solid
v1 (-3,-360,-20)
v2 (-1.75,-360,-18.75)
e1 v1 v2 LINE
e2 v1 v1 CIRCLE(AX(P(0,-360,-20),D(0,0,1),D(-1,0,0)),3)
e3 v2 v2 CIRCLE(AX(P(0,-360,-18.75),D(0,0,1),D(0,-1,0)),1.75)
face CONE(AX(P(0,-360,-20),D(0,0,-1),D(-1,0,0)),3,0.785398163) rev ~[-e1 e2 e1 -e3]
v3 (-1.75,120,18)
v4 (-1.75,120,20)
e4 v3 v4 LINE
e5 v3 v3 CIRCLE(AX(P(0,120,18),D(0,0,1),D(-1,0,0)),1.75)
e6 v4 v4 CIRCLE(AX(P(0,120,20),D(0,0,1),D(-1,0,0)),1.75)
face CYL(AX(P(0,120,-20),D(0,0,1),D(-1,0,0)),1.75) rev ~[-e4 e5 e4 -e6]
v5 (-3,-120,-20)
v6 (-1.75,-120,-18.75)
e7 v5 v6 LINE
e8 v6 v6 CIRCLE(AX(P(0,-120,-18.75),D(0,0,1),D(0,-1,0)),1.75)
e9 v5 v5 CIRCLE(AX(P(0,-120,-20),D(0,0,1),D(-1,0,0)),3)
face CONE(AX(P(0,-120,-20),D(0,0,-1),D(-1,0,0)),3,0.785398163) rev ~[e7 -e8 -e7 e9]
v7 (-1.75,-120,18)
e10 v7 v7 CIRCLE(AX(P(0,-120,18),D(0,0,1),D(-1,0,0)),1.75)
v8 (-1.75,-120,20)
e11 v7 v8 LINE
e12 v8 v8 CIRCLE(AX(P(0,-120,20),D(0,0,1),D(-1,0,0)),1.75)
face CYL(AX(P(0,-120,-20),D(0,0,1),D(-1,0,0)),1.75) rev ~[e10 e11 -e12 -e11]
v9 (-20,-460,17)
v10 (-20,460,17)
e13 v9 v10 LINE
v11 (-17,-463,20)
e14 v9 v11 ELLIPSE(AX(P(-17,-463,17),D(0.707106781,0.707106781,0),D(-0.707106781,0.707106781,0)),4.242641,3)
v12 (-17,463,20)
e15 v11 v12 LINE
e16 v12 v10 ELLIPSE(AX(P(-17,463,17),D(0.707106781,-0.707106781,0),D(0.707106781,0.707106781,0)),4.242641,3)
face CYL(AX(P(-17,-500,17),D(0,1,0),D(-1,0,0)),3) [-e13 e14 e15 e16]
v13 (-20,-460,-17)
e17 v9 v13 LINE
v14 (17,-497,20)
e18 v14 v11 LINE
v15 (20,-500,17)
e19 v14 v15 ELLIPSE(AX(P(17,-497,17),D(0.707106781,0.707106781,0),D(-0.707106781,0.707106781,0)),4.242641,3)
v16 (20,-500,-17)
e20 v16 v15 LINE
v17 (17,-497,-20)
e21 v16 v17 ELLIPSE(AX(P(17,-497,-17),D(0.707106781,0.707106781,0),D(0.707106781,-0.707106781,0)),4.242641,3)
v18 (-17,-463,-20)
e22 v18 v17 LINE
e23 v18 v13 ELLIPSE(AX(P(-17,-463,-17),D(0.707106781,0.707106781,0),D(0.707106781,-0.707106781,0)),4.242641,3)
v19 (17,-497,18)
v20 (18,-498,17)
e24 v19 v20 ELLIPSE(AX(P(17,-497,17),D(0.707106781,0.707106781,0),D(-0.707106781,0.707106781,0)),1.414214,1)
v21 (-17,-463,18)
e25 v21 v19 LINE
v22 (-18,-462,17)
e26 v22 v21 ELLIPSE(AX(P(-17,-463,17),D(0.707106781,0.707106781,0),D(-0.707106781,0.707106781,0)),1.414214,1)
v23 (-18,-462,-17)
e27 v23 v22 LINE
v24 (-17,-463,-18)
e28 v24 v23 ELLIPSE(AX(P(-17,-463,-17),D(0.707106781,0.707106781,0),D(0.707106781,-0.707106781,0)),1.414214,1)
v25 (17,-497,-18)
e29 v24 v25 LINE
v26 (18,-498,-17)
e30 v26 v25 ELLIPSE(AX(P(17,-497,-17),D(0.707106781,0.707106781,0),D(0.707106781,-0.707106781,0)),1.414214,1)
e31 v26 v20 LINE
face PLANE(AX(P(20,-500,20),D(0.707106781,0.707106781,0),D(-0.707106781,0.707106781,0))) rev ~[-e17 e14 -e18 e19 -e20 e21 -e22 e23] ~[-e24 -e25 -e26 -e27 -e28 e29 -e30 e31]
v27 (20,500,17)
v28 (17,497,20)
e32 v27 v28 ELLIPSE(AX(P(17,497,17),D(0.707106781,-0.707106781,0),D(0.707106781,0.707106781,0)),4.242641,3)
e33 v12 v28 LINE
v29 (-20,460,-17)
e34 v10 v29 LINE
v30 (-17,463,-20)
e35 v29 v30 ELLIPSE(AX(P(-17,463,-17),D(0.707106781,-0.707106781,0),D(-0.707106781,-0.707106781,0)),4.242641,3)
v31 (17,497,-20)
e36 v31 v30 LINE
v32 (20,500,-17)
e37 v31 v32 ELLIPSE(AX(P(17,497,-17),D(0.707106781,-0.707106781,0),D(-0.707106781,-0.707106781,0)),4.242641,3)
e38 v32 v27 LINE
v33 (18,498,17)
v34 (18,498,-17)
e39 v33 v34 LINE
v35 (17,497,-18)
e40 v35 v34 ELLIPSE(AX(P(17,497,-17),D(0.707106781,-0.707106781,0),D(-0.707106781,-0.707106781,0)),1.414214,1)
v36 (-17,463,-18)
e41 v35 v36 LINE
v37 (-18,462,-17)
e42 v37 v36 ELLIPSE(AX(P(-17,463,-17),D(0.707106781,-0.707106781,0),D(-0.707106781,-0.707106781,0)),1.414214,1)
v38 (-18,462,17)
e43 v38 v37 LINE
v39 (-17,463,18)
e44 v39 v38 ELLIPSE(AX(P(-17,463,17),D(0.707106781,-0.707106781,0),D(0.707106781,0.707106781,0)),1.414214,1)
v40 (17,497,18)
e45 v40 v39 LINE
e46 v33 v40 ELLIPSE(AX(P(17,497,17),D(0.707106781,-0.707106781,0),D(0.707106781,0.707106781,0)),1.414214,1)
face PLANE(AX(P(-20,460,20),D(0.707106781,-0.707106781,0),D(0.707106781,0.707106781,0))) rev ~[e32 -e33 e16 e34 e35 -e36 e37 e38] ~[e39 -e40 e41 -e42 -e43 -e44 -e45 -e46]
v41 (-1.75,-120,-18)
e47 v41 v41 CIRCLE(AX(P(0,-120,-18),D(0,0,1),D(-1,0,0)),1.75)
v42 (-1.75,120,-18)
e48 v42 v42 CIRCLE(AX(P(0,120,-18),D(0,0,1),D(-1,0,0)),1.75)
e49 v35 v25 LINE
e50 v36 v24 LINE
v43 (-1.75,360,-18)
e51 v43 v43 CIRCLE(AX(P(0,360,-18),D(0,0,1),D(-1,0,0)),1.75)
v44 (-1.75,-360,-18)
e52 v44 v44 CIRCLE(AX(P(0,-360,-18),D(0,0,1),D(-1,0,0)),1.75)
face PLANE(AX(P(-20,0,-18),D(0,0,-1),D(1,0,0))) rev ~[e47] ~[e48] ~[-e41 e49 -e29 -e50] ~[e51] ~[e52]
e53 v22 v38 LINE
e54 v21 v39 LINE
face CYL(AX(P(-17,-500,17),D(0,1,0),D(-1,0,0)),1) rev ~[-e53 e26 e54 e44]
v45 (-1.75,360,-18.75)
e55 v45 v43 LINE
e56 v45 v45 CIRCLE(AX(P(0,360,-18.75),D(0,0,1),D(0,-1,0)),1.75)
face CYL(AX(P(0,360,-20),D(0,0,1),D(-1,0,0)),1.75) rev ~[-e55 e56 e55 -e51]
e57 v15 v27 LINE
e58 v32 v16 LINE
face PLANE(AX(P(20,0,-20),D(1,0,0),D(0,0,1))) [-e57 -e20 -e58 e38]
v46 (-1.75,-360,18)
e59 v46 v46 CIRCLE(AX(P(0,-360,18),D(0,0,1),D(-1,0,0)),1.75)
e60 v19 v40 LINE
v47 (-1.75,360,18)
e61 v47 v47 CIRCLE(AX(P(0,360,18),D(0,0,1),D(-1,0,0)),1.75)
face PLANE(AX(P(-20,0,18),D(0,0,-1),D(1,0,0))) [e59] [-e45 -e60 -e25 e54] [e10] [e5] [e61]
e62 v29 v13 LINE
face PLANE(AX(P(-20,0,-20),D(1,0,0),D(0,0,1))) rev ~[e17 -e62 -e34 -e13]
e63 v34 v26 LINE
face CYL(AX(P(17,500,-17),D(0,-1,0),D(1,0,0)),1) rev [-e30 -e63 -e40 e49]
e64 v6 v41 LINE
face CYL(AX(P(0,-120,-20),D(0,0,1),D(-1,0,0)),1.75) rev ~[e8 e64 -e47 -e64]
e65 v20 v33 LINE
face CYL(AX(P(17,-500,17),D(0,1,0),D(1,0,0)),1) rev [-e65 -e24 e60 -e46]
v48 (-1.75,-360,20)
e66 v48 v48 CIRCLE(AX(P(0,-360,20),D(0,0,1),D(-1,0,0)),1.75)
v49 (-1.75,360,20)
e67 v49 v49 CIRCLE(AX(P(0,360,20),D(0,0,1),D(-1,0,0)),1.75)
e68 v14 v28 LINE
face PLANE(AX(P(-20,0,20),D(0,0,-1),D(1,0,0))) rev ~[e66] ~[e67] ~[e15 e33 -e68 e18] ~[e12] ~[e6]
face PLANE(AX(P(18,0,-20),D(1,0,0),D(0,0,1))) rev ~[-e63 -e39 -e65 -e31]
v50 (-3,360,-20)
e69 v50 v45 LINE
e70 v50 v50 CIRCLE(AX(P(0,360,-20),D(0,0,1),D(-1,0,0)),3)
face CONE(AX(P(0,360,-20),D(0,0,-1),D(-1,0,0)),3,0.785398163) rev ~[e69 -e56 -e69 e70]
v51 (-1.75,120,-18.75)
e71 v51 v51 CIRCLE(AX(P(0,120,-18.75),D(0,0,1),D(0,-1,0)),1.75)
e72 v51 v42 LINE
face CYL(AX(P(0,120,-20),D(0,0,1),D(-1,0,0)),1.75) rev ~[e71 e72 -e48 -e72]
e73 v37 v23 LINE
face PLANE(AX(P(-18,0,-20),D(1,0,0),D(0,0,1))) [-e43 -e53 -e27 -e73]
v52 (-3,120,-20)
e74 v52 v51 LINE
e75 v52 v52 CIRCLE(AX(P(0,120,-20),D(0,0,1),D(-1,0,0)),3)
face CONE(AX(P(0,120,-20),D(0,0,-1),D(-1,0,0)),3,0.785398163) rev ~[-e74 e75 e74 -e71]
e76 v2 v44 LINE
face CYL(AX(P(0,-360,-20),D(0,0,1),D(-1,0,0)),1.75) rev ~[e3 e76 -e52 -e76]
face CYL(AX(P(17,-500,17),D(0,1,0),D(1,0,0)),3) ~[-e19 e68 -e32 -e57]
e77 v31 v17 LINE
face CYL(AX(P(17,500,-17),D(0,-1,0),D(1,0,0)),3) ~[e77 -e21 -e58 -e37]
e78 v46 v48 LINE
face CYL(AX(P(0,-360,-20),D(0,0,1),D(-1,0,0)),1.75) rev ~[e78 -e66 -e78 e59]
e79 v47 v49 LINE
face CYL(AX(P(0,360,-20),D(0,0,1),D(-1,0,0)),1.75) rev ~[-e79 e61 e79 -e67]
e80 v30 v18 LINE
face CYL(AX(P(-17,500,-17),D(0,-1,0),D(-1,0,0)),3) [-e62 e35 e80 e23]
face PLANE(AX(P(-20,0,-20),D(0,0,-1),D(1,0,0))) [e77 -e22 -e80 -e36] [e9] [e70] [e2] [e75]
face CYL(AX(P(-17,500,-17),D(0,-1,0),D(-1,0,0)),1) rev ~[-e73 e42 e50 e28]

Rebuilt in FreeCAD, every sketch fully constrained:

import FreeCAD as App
import Part
import Sketcher

V = App.Vector
Q = App.Units.Quantity


def edges_at(feature, points):
    """Names of the edges that pass closest to the given points."""
    edges = feature.Shape.Edges
    near = lambda p: min(range(len(edges)), key=lambda i: edges[i].distToShape(Part.Vertex(*p))[0])
    return sorted({f"Edge{near(p) + 1}" for p in points})


def faces_at(feature, points):
    """Names of the faces that lie closest to the given points."""
    faces = feature.Shape.Faces
    near = lambda p: min(range(len(faces)), key=lambda i: faces[i].distToShape(Part.Vertex(*p))[0])
    return sorted({f"Face{near(p) + 1}" for p in points})

doc = App.newDocument("Part")
body = doc.addObject("PartDesign::Body", "Body")

# Sketch on XZ plane
sketch1 = body.newObject("Sketcher::SketchObject", "Sketch")
sketch1.AttachmentSupport = (doc.getObject("XZ_Plane"), [""])
sketch1.MapMode = "FlatFace"
sketch1.addGeometry([
    Part.LineSegment(V(-20, 20, 0), V(-20, -20, 0)),
    Part.LineSegment(V(-20, -20, 0), V(20, -20, 0)),
    Part.LineSegment(V(20, -20, 0), V(20, 20, 0)),
    Part.LineSegment(V(20, 20, 0), V(-20, 20, 0)),
], False)
sketch1.addConstraint([
    Sketcher.Constraint("Coincident", 0, 2, 1, 1),
    Sketcher.Constraint("Coincident", 1, 2, 2, 1),
    Sketcher.Constraint("Coincident", 2, 2, 3, 1),
    Sketcher.Constraint("Coincident", 3, 2, 0, 1),
    Sketcher.Constraint("Vertical", 0),
    Sketcher.Constraint("Horizontal", 1),
    Sketcher.Constraint("Vertical", 2),
    Sketcher.Constraint("Horizontal", 3),
    Sketcher.Constraint("Symmetric", 0, 2, 2, 2, -1, 1),
    Sketcher.Constraint("Equal", 3, 0),
    Sketcher.Constraint("DistanceX", 1, 1, 1, 2, Q("40 mm")),
])
pad1 = body.newObject("PartDesign::Pad", "Pad")
pad1.Profile = sketch1
pad1.Length = 1000
pad1.Midplane = True
doc.recompute()

fillet = body.newObject("PartDesign::Fillet", "Fillet")
fillet.Base = (pad1, edges_at(pad1, [
    (20, 0, 20),
    (-20, 0, 20),
    (20, 0, -20),
    (-20, 0, -20),
]))
fillet.Radius = 3
doc.recompute()

thickness = body.newObject("PartDesign::Thickness", "Thickness")
thickness.Base = (fillet, faces_at(fillet, [(0, -500, 0), (0, 500, 0)]))
thickness.Value = 2
thickness.Reversed = True
thickness.Join = "Arc"

# Sketch on XY plane
sketch2 = body.newObject("Sketcher::SketchObject", "Sketch001")
sketch2.AttachmentSupport = (doc.getObject("XY_Plane"), [""])
sketch2.MapMode = "FlatFace"
sketch2.AttachmentOffset = App.Placement(V(0, 0, 20), App.Rotation())
sketch2.addGeometry([
    Part.LineSegment(V(20, 500, 0), V(-20, 500, 0)),  # 0
    Part.LineSegment(V(-20, 500, 0), V(-20, 460, 0)),  # 1
    Part.LineSegment(V(-20, 460, 0), V(20, 500, 0)),  # 2
    Part.LineSegment(V(20, -500, 0), V(-20, -460, 0)),  # 3
    Part.LineSegment(V(-20, -460, 0), V(-20, -500, 0)),  # 4
    Part.LineSegment(V(-20, -500, 0), V(20, -500, 0)),  # 5
], False)
sketch2.addConstraint([
    Sketcher.Constraint("Coincident", 0, 2, 1, 1),
    Sketcher.Constraint("Coincident", 1, 2, 2, 1),
    Sketcher.Constraint("Coincident", 2, 2, 0, 1),
    Sketcher.Constraint("Coincident", 3, 2, 4, 1),
    Sketcher.Constraint("Coincident", 4, 2, 5, 1),
    Sketcher.Constraint("Coincident", 5, 2, 3, 1),
    Sketcher.Constraint("Horizontal", 0),
    Sketcher.Constraint("Vertical", 1),
    Sketcher.Constraint("Vertical", 4),
    Sketcher.Constraint("Horizontal", 5),
    Sketcher.Constraint("Symmetric", 2, 2, 4, 2, -1, 1),
    Sketcher.Constraint("Symmetric", 1, 2, 3, 2, -1),
    Sketcher.Constraint("Perpendicular", 2, 3),
    Sketcher.Constraint("Vertical", 2, 2, 5, 2),
    Sketcher.Constraint("DistanceX", 0, 2, 0, 1, Q("40 mm")),
    Sketcher.Constraint("DistanceY", -1, 1, 0, 2, Q("500 mm")),
])
pocket1 = body.newObject("PartDesign::Pocket", "Pocket")
pocket1.Profile = sketch2
pocket1.Type = "ThroughAll"

# Sketch on XY plane
sketch3 = body.newObject("Sketcher::SketchObject", "Sketch002")
sketch3.AttachmentSupport = (doc.getObject("XY_Plane"), [""])
sketch3.MapMode = "FlatFace"
sketch3.AttachmentOffset = App.Placement(V(0, 0, -20), App.Rotation())
sketch3.addGeometry([
    Part.Circle(V(0, -360, 0), V(0, 0, 1), 1.8),
    Part.Circle(V(0, -120, 0), V(0, 0, 1), 1.8),
    Part.Circle(V(0, 120, 0), V(0, 0, 1), 1.8),
    Part.Circle(V(0, 360, 0), V(0, 0, 1), 1.8),
], False)
sketch3.addConstraint([
    Sketcher.Constraint("Equal", 0, 1),
    Sketcher.Constraint("Equal", 1, 2),
    Sketcher.Constraint("Equal", 2, 3),
    Sketcher.Constraint("Symmetric", 1, 3, 2, 3, -1, 1),
    Sketcher.Constraint("Symmetric", 0, 3, 3, 3, -1, 1),
    Sketcher.Constraint("PointOnObject", 0, 3, -2),
    Sketcher.Constraint("PointOnObject", 1, 3, -2),
    Sketcher.Constraint("Diameter", 0, Q("3.5 mm")),
    Sketcher.Constraint("DistanceY", 0, 3, -1, 1, Q("360 mm")),
    Sketcher.Constraint("DistanceY", 1, 3, -1, 1, Q("120 mm")),
])
doc.recompute()
hole = body.newObject("PartDesign::Hole", "Hole")
hole.Profile = sketch3
hole.ThreadType = "None"
hole.Diameter = 3.5
hole.DepthType = "ThroughAll"
hole.HoleCutType = "Countersink"
hole.HoleCutDiameter = 6
hole.HoleCutCountersinkAngle = 90
hole.Reversed = True

doc.recompute()
